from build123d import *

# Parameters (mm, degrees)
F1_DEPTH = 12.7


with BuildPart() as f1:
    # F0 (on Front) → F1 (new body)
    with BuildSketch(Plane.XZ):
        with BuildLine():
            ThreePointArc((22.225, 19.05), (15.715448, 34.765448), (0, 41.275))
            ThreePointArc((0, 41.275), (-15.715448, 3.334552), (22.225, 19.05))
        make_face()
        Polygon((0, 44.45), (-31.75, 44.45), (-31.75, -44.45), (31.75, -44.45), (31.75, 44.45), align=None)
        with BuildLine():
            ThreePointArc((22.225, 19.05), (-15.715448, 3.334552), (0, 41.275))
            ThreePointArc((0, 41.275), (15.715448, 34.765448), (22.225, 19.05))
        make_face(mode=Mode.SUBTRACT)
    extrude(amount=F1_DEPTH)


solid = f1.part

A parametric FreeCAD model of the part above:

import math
import FreeCAD as App
import Part
import Sketcher
Q = App.Units.Quantity

doc = App.newDocument("Part")
params = doc.addObject("Spreadsheet::Sheet", "Params")
for row, (alias, value) in enumerate([
    ("sketch1_width", "2.5 in"),
    ("sketch1_height", "3.5 in"),
    ("sketch1_radius", "0.875 in"),
    ("pad1_length", "0.5 in"),
], start=1):
    params.set(f"A{row}", alias)
    params.set(f"B{row}", "=" + value)
    params.setAlias(f"B{row}", alias)

body = doc.addObject("PartDesign::Body", "Body")

# Sketch on XZ plane
sketch1 = body.newObject("Sketcher::SketchObject", "Sketch")
sketch1.AttachmentSupport = (doc.getObject("XZ_Plane"), [""])
sketch1.MapMode = "FlatFace"
sketch1.addGeometry(Part.LineSegment(App.Vector(-31.75, 44.45, 0), App.Vector(-31.75, -44.45, 0)), False)
sketch1.addGeometry(Part.LineSegment(App.Vector(-31.75, -44.45, 0), App.Vector(31.75, -44.45, 0)), False)
sketch1.addGeometry(Part.LineSegment(App.Vector(31.75, -44.45, 0), App.Vector(31.75, 44.45, 0)), False)
sketch1.addGeometry(Part.LineSegment(App.Vector(31.75, 44.45, 0), App.Vector(-31.75, 44.45, 0)), False)
sketch1.addGeometry(Part.ArcOfCircle(Part.Circle(App.Vector(-0.000001, 19.049999, 0), App.Vector(0, 0, 1), 22.225001), math.radians(0.000002), math.radians(89.999998)), False)
sketch1.addGeometry(Part.ArcOfCircle(Part.Circle(App.Vector(0, 19.05, 0), App.Vector(0, 0, 1), 22.225), math.radians(90), math.radians(360)), False)
sketch1.addConstraint(Sketcher.Constraint("Coincident", 0, 2, 1, 1))
sketch1.addConstraint(Sketcher.Constraint("Coincident", 1, 2, 2, 1))
sketch1.addConstraint(Sketcher.Constraint("Coincident", 2, 2, 3, 1))
sketch1.addConstraint(Sketcher.Constraint("Coincident", 3, 2, 0, 1))
sketch1.addConstraint(Sketcher.Constraint("Tangent", 4, 1, 5, 2))
sketch1.addConstraint(Sketcher.Constraint("Coincident", 5, 1, 4, 2))
sketch1.addConstraint(Sketcher.Constraint("Vertical", 0))
sketch1.addConstraint(Sketcher.Constraint("Horizontal", 1))
sketch1.addConstraint(Sketcher.Constraint("Vertical", 2))
sketch1.addConstraint(Sketcher.Constraint("Horizontal", 3))
sketch1.addConstraint(Sketcher.Constraint("Symmetric", 0, 2, 2, 2, -1, 1))
sketch1.addConstraint(Sketcher.Constraint("PointOnObject", 4, 3, -2))
sketch1.addConstraint(Sketcher.Constraint("PointOnObject", 5, 1, -2))
sketch1.addConstraint(Sketcher.Constraint("Horizontal", 5, 3, 4, 1))
sketch1.addConstraint(Sketcher.Constraint("DistanceX", 1, 1, 1, 2, Q("2.5 in")))
sketch1.addConstraint(Sketcher.Constraint("DistanceY", 0, 2, 0, 1, Q("3.5 in")))
sketch1.addConstraint(Sketcher.Constraint("Radius", 4, Q("0.875 in")))
sketch1.addConstraint(Sketcher.Constraint("DistanceY", 5, 3, 2, 2, Q("1 in")))
sketch1.setExpression("Constraints[14]", "Params.sketch1_width")
sketch1.setExpression("Constraints[15]", "Params.sketch1_height")
sketch1.setExpression("Constraints[16]", "Params.sketch1_radius")
pad1 = body.newObject("PartDesign::Pad", "Pad")
pad1.Profile = sketch1
pad1.setExpression("Length", "Params.pad1_length")

doc.recompute()
